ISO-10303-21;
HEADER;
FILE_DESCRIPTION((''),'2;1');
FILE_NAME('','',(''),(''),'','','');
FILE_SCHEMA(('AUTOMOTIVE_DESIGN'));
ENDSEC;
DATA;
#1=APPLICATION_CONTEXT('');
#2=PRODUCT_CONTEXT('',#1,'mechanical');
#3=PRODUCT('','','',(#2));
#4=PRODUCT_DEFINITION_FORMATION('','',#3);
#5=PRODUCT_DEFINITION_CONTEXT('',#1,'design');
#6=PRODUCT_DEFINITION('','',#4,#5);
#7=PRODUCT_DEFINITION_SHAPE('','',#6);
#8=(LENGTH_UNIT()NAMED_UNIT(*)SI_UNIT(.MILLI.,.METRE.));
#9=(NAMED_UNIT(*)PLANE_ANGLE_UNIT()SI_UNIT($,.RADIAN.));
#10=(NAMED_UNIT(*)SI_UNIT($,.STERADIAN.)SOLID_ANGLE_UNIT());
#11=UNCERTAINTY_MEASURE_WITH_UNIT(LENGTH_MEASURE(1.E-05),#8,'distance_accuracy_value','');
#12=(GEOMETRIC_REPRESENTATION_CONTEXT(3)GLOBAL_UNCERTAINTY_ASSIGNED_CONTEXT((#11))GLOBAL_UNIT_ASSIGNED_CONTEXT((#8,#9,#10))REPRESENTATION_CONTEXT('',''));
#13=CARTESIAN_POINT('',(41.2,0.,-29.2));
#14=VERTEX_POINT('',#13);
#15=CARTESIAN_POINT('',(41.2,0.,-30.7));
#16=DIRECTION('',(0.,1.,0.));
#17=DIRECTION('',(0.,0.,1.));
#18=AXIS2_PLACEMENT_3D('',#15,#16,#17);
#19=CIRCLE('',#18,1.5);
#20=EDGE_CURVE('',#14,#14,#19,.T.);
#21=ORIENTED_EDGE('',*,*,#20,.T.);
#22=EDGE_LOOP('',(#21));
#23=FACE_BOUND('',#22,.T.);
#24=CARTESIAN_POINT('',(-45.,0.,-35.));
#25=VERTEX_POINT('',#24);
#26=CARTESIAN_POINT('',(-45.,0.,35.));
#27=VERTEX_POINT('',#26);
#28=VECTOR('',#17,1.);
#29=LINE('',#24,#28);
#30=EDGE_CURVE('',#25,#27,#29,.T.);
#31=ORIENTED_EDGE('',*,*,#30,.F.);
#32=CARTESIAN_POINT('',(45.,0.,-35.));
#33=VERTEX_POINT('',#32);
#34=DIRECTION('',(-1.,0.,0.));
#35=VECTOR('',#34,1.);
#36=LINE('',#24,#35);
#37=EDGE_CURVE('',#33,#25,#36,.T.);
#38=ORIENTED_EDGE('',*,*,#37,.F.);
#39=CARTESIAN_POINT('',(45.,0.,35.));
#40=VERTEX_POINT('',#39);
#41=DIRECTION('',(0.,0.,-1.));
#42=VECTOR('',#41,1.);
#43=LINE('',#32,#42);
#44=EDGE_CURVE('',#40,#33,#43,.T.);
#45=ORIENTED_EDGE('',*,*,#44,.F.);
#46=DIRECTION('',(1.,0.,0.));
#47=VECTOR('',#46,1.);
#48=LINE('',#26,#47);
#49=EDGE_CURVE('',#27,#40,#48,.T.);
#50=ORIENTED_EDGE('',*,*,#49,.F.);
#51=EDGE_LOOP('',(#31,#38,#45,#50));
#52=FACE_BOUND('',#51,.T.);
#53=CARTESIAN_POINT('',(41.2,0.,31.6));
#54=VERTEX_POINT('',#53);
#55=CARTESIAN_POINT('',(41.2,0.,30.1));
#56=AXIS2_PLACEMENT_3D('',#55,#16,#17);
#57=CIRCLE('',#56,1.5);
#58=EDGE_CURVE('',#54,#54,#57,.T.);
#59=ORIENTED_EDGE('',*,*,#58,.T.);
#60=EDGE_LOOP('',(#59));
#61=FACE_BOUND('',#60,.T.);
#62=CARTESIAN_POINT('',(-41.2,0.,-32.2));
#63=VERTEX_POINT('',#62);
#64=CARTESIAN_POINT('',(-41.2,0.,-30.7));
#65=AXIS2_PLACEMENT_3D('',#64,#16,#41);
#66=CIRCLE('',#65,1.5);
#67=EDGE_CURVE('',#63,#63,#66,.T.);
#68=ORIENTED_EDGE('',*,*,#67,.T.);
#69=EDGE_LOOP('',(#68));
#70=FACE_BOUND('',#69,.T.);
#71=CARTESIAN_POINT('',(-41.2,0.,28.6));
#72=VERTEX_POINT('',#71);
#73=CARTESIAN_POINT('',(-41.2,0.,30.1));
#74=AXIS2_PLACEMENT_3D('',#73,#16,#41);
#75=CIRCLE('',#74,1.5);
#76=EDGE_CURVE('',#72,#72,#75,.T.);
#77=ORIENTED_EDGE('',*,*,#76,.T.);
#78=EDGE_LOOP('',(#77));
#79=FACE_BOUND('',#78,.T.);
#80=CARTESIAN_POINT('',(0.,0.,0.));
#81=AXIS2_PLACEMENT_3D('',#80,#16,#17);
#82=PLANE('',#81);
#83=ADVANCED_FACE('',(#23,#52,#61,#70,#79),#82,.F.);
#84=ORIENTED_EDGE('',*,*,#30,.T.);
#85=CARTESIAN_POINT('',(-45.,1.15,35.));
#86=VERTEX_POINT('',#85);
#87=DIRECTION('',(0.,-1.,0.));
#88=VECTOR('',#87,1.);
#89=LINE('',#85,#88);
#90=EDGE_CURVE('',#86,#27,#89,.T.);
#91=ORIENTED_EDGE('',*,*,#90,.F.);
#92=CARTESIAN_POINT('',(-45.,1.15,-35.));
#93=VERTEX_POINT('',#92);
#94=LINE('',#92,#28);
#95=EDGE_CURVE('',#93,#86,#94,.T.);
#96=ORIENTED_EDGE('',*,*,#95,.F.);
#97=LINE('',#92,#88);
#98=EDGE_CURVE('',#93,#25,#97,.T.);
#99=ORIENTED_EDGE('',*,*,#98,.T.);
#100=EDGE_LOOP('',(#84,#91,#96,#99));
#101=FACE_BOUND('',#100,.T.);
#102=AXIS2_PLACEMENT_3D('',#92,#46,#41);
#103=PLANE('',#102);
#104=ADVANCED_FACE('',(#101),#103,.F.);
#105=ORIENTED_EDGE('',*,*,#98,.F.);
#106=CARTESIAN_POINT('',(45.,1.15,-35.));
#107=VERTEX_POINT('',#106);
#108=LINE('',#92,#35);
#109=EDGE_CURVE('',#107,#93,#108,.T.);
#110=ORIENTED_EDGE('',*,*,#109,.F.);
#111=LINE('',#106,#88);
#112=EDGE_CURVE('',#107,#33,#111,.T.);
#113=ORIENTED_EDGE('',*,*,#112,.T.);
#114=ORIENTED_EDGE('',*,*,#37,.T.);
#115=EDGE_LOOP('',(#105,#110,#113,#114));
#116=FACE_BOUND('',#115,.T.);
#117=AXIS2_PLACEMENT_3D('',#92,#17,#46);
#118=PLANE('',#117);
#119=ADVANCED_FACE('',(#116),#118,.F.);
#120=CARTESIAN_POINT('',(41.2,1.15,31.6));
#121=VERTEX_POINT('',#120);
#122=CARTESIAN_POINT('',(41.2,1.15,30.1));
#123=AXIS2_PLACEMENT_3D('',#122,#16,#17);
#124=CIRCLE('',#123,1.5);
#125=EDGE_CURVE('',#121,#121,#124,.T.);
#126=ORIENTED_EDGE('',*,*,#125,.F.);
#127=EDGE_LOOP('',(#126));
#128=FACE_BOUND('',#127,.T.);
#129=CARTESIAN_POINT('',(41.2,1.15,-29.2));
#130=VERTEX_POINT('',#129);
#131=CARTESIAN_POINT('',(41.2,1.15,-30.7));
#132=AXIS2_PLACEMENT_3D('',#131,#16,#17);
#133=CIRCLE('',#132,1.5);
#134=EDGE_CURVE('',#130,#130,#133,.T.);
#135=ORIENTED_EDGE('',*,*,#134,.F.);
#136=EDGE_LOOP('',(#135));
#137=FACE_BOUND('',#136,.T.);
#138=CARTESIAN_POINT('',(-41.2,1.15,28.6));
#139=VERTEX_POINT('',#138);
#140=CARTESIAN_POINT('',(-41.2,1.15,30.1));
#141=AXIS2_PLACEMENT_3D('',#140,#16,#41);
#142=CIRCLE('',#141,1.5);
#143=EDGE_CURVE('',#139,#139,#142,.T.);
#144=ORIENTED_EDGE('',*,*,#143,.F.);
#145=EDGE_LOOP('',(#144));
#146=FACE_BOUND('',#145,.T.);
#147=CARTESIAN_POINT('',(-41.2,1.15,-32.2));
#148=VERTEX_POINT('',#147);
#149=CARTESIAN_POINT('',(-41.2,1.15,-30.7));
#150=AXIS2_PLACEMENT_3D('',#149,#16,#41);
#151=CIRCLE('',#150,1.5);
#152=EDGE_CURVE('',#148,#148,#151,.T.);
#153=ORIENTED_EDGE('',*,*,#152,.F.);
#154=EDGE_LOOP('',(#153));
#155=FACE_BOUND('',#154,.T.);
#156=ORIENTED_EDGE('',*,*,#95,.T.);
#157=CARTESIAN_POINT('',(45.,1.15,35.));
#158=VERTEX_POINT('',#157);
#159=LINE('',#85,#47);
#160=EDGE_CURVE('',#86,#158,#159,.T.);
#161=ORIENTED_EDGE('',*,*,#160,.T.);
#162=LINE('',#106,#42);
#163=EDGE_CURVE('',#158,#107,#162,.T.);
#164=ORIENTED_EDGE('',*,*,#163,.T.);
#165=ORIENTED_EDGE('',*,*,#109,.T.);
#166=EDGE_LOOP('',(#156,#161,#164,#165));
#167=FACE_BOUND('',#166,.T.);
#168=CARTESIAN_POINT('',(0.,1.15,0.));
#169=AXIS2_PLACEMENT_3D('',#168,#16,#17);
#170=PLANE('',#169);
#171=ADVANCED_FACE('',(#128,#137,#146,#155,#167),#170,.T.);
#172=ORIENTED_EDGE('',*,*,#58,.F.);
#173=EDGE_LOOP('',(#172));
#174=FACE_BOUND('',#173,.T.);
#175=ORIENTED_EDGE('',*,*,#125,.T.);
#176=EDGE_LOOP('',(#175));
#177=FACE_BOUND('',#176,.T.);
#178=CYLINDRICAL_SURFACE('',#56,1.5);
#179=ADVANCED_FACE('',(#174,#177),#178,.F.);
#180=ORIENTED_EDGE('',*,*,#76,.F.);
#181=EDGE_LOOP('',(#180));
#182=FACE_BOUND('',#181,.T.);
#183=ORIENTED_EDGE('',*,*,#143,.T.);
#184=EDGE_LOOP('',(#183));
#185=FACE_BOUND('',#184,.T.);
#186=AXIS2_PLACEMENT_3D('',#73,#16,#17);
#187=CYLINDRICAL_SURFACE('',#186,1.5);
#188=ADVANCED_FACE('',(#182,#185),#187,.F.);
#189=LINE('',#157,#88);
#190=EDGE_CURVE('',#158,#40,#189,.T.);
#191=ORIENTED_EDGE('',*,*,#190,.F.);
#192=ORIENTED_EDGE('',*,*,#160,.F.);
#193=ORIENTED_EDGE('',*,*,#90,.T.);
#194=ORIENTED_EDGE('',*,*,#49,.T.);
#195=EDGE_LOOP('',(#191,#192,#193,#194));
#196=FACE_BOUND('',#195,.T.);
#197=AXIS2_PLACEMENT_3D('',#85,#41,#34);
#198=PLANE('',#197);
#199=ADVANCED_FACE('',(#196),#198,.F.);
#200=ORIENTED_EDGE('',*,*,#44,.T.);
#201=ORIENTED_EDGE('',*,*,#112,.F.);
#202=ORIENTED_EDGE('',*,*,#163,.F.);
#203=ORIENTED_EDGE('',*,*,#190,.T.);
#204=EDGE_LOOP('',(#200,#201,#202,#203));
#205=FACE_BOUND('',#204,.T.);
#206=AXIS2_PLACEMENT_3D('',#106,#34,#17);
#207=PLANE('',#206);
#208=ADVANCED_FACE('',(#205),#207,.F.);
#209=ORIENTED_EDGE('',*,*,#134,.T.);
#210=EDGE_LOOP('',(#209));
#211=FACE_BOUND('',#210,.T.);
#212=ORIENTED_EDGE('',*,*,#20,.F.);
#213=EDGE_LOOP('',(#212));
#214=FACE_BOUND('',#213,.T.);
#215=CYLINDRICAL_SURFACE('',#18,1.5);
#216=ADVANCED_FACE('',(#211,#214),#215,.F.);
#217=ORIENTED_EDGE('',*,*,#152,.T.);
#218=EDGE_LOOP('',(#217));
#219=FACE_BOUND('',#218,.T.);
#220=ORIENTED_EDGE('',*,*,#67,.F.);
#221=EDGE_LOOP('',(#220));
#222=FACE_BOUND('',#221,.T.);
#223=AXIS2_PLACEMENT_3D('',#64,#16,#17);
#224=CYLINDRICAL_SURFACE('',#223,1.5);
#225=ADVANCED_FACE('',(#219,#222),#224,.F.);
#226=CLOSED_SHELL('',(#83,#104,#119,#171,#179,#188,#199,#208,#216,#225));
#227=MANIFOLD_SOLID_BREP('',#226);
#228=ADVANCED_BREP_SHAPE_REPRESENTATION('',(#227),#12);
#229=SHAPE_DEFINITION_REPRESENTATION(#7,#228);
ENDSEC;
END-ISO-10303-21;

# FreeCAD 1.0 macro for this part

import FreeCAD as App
import Part
import Sketcher
Q = App.Units.Quantity


def add_polygon(sketch, points):
    """Adds a closed chain of lines whose ends are joined by coincident constraints."""
    first, n = sketch.GeometryCount, len(points)
    for a, b in zip(points, points[1:] + points[:1]):
        sketch.addGeometry(Part.LineSegment(App.Vector(*a, 0), App.Vector(*b, 0)), False)
    for i in range(n):
        sketch.addConstraint(Sketcher.Constraint("Coincident", first + i, 2, first + (i + 1) % n, 1))

doc = App.newDocument("Part")
body = doc.addObject("PartDesign::Body", "Body")

sketch1 = body.newObject("Sketcher::SketchObject", "Sketch")
sketch1.AttachmentSupport = (doc.getObject("XZ_Plane"), [""])
sketch1.MapMode = "FlatFace"
add_polygon(sketch1, [(-45, -35), (-45, 35), (45, 35), (45, -35)])
sketch1.addConstraint([
    Sketcher.Constraint("Vertical", 0),
    Sketcher.Constraint("Horizontal", 1),
    Sketcher.Constraint("Vertical", 2),
    Sketcher.Constraint("Horizontal", 3),
    Sketcher.Constraint("Symmetric", 0, 2, 2, 2, -1, 1),
    Sketcher.Constraint("DistanceX", 1, 1, 1, 2, Q("90 mm")),
    Sketcher.Constraint("DistanceY", 0, 1, 0, 2, Q("70 mm")),
])
pad1 = body.newObject("PartDesign::Pad", "Pad")
pad1.Profile = sketch1
pad1.Length = 1.15
pad1.Reversed = True

sketch2 = body.newObject("Sketcher::SketchObject", "Sketch001")
sketch2.AttachmentSupport = (doc.getObject("XZ_Plane"), [""])
sketch2.MapMode = "FlatFace"
sketch2.AttachmentOffset = App.Placement(App.Vector(0, 0, -1.15), App.Rotation())
sketch2.addGeometry([
    Part.Circle(App.Vector(41.2, -30.7, 0), App.Vector(0, 0, 1), 1.5),
    Part.Circle(App.Vector(41.2, 30.1, 0), App.Vector(0, 0, 1), 1.5),
    Part.Circle(App.Vector(-41.2, 30.1, 0), App.Vector(0, 0, 1), 1.5),
    Part.Circle(App.Vector(-41.2, -30.7, 0), App.Vector(0, 0, 1), 1.5),
], False)
sketch2.addConstraint([
    Sketcher.Constraint("Equal", 0, 1),
    Sketcher.Constraint("Equal", 1, 2),
    Sketcher.Constraint("Equal", 2, 3),
    Sketcher.Constraint("Symmetric", 1, 3, 2, 3, -2),
    Sketcher.Constraint("Symmetric", 0, 3, 3, 3, -2),
    Sketcher.Constraint("Vertical", 0, 3, 1, 3),
    Sketcher.Constraint("Diameter", 0, Q("3 mm")),
    Sketcher.Constraint("DistanceX", -1, 1, 0, 3, Q("41.2 mm")),
    Sketcher.Constraint("DistanceY", 0, 3, -1, 1, Q("30.7 mm")),
    Sketcher.Constraint("DistanceY", -1, 1, 1, 3, Q("30.1 mm")),
])
pocket1 = body.newObject("PartDesign::Pocket", "Pocket")
pocket1.Profile = sketch2
pocket1.Type = "ThroughAll"
pocket1.Reversed = True

doc.recompute()
